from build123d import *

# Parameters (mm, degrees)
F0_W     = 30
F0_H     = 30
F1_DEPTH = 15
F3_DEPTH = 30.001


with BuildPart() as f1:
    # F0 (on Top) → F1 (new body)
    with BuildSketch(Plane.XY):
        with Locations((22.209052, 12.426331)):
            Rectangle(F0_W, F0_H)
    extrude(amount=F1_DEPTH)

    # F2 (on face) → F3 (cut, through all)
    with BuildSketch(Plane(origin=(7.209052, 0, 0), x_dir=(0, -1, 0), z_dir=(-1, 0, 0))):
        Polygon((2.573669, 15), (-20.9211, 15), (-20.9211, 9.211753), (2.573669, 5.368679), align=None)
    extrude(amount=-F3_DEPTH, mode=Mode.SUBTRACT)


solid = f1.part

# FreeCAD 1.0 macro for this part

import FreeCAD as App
import Part
import Sketcher

V = App.Vector
Q = App.Units.Quantity

doc = App.newDocument("Part")
body = doc.addObject("PartDesign::Body", "Body")

# Sketch on XY plane
sketch1 = body.newObject("Sketcher::SketchObject", "Sketch")
sketch1.AttachmentSupport = (doc.getObject("XY_Plane"), [""])
sketch1.MapMode = "FlatFace"
sketch1.addGeometry(Part.LineSegment(V(7, 27, 0), V(7, -3, 0)), False)
sketch1.addGeometry(Part.LineSegment(V(7, -3, 0), V(37, -3, 0)), False)
sketch1.addGeometry(Part.LineSegment(V(37, -3, 0), V(37, 27, 0)), False)
sketch1.addGeometry(Part.LineSegment(V(37, 27, 0), V(7, 27, 0)), False)
sketch1.addConstraint(Sketcher.Constraint("Coincident", 0, 2, 1, 1))
sketch1.addConstraint(Sketcher.Constraint("Coincident", 1, 2, 2, 1))
sketch1.addConstraint(Sketcher.Constraint("Coincident", 2, 2, 3, 1))
sketch1.addConstraint(Sketcher.Constraint("Coincident", 3, 2, 0, 1))
sketch1.addConstraint(Sketcher.Constraint("Vertical", 0))
sketch1.addConstraint(Sketcher.Constraint("Horizontal", 1))
sketch1.addConstraint(Sketcher.Constraint("Vertical", 2))
sketch1.addConstraint(Sketcher.Constraint("Horizontal", 3))
sketch1.addConstraint(Sketcher.Constraint("Equal", 3, 0))
sketch1.addConstraint(Sketcher.Constraint("DistanceX", 1, 1, 1, 2, Q("30 mm")))
sketch1.addConstraint(Sketcher.Constraint("DistanceX", -1, 1, 0, 2, Q("7.209052 mm")))
sketch1.addConstraint(Sketcher.Constraint("DistanceY", 0, 2, -1, 1, Q("2.573669 mm")))
pad1 = body.newObject("PartDesign::Pad", "Pad")
pad1.Profile = sketch1
pad1.Length = 15

# Sketch on YZ plane
sketch2 = body.newObject("Sketcher::SketchObject", "Sketch001")
sketch2.AttachmentSupport = (doc.getObject("YZ_Plane"), [""])
sketch2.MapMode = "FlatFace"
sketch2.AttachmentOffset = App.Placement(V(0, 0, 7.209052), App.Rotation())
sketch2.addGeometry(Part.LineSegment(V(-3, 15, 0), V(21, 15, 0)), False)
sketch2.addGeometry(Part.LineSegment(V(21, 15, 0), V(21, 9, 0)), False)
sketch2.addGeometry(Part.LineSegment(V(21, 9, 0), V(-3, 5, 0)), False)
sketch2.addGeometry(Part.LineSegment(V(-3, 5, 0), V(-3, 15, 0)), False)
sketch2.addConstraint(Sketcher.Constraint("Coincident", 0, 2, 1, 1))
sketch2.addConstraint(Sketcher.Constraint("Coincident", 1, 2, 2, 1))
sketch2.addConstraint(Sketcher.Constraint("Coincident", 2, 2, 3, 1))
sketch2.addConstraint(Sketcher.Constraint("Coincident", 3, 2, 0, 1))
sketch2.addConstraint(Sketcher.Constraint("Horizontal", 0))
sketch2.addConstraint(Sketcher.Constraint("Vertical", 1))
sketch2.addConstraint(Sketcher.Constraint("Vertical", 3))
sketch2.addConstraint(Sketcher.Constraint("DistanceY", -1, 1, 0, 2, Q("15 mm")))
sketch2.addConstraint(Sketcher.Constraint("DistanceX", 0, 1, 0, 2, Q("23.494769 mm")))
sketch2.addConstraint(Sketcher.Constraint("DistanceY", 3, 1, 3, 2, Q("9.631321 mm")))
sketch2.addConstraint(Sketcher.Constraint("DistanceX", -1, 1, 0, 2, Q("20.9211 mm")))
sketch2.addConstraint(Sketcher.Constraint("DistanceY", 1, 2, 1, 1, Q("5.788247 mm")))
pocket1 = body.newObject("PartDesign::Pocket", "Pocket")
pocket1.Profile = sketch2
pocket1.Type = "ThroughAll"
pocket1.Reversed = True

doc.recompute()
